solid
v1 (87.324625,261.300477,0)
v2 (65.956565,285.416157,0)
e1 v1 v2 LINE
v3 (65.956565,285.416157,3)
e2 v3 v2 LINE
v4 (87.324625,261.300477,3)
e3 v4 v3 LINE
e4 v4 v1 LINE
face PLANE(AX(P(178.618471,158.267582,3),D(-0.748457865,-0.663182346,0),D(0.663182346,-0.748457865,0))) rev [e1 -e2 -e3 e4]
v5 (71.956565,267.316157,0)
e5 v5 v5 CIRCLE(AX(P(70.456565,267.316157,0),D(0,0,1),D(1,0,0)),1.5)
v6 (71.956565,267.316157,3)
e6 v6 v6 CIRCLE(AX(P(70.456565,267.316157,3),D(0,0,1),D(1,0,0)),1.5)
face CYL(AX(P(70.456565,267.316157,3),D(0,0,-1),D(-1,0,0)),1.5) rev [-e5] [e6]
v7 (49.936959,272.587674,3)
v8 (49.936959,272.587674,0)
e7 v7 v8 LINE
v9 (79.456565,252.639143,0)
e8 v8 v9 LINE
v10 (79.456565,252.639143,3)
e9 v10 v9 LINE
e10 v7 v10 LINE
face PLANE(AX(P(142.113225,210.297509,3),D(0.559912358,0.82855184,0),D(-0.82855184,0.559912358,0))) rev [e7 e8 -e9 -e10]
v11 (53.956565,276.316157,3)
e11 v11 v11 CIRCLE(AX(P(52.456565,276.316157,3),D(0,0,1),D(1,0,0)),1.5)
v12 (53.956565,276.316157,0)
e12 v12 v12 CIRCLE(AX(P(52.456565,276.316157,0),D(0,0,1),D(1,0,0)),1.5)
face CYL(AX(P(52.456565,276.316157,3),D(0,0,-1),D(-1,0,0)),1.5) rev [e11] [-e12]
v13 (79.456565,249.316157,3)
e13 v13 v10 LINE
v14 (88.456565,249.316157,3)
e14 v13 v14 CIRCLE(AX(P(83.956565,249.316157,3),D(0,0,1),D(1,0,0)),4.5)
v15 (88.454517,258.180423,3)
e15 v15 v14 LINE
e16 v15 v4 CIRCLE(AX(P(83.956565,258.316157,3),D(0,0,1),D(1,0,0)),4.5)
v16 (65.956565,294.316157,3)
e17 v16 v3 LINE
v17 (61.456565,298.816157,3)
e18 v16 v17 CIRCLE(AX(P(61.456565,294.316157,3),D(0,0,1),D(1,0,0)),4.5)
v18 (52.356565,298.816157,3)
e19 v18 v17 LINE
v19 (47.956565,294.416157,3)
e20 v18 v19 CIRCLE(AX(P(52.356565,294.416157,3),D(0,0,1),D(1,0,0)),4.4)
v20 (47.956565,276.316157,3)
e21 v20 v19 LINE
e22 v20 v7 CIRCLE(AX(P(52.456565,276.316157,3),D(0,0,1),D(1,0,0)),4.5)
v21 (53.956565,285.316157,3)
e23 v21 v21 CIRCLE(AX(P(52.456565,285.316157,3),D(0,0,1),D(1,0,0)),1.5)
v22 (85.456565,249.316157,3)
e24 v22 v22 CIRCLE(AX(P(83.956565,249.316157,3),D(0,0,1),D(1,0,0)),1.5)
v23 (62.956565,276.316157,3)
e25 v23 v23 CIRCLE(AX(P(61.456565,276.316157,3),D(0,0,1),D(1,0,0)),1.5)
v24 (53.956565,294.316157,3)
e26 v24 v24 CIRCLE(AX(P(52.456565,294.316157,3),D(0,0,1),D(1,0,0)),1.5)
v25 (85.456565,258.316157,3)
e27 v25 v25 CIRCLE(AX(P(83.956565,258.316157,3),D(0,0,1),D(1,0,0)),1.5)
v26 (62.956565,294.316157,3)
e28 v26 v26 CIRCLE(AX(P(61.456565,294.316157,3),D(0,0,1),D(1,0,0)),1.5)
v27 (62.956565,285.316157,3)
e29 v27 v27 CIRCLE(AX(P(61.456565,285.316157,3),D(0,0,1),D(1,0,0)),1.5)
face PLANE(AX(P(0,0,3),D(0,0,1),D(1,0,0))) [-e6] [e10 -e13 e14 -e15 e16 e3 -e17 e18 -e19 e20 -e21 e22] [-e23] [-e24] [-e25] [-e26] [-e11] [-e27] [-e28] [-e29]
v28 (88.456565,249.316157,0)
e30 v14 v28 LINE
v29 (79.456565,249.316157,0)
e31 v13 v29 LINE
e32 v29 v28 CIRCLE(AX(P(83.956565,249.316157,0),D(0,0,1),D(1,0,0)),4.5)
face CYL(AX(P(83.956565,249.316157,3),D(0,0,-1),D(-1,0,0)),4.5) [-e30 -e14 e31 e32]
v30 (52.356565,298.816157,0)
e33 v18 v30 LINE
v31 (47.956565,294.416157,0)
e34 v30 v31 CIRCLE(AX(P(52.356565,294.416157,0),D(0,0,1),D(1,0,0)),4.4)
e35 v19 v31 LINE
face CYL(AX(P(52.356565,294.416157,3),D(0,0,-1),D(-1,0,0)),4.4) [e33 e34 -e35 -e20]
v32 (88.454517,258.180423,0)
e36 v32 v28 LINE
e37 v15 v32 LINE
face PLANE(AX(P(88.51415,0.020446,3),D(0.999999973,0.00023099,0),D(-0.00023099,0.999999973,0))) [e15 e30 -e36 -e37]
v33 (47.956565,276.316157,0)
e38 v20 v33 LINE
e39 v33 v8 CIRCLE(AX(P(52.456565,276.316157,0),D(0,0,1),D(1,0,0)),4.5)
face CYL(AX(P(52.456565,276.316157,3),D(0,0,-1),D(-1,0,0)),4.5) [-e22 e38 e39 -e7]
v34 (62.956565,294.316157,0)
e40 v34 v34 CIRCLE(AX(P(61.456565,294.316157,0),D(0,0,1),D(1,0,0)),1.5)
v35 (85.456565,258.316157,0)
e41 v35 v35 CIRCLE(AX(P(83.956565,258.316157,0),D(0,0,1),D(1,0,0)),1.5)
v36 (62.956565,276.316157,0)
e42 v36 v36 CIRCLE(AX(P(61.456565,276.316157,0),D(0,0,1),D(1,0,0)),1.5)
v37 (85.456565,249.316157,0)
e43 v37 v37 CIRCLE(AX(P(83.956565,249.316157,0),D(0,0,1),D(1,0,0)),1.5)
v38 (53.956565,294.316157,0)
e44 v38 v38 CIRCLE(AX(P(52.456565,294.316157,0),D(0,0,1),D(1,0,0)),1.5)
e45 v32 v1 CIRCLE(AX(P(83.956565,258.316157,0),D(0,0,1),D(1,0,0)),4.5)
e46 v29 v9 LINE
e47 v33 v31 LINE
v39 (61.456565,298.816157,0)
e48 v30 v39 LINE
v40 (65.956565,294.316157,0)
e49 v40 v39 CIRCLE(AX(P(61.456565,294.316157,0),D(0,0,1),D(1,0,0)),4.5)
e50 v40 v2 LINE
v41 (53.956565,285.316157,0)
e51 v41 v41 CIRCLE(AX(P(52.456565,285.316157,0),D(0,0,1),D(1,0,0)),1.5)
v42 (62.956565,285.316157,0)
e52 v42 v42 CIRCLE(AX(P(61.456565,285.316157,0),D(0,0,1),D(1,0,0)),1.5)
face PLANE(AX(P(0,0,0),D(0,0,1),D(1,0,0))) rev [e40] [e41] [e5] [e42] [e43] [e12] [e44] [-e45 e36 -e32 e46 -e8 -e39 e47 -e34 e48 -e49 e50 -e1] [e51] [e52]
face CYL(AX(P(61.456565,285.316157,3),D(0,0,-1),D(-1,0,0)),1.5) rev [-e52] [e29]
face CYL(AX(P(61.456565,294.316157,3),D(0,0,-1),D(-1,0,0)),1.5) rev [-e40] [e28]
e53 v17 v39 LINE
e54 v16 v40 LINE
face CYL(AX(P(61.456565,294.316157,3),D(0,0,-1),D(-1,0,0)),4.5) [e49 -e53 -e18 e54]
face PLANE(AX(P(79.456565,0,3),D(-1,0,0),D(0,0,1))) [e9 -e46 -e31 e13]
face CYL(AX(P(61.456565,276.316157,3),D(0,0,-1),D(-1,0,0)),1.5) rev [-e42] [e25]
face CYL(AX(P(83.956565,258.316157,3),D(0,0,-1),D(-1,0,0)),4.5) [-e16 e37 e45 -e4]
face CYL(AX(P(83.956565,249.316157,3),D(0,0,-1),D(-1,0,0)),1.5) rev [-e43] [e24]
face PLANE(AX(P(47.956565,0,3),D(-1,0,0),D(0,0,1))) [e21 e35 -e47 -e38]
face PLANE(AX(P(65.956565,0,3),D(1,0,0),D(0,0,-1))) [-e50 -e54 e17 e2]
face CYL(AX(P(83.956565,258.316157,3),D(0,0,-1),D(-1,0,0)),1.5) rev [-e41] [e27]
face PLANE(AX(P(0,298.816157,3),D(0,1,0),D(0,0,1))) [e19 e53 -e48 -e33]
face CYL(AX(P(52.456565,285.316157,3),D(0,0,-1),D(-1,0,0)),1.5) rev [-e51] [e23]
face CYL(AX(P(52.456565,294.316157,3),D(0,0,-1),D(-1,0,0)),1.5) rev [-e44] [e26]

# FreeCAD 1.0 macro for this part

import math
import FreeCAD as App
import Part
import Sketcher
Q = App.Units.Quantity

doc = App.newDocument("Part")
body = doc.addObject("PartDesign::Body", "Body")

sketch1 = body.newObject("Sketcher::SketchObject", "Sketch")
sketch1.AttachmentSupport = (doc.getObject("XY_Plane"), [""])
sketch1.MapMode = "FlatFace"
sketch1.addGeometry(Part.LineSegment(App.Vector(47.956565, 294.416157, 0), App.Vector(47.956565, 276.316157, 0)), False)
sketch1.addGeometry(Part.ArcOfCircle(Part.Circle(App.Vector(52.456565, 276.316157, 0), App.Vector(0, 0, 1), 4.5), math.radians(180), math.radians(235.950263)), False)
sketch1.addGeometry(Part.LineSegment(App.Vector(49.936959, 272.587674, 0), App.Vector(70.456565, 258.721093, 0)), False)
sketch1.addGeometry(Part.LineSegment(App.Vector(70.456565, 258.721093, 0), App.Vector(79.456565, 252.639143, 0)), False)
sketch1.addGeometry(Part.LineSegment(App.Vector(79.456565, 252.639143, 0), App.Vector(79.456565, 249.316157, 0)), False)
sketch1.addGeometry(Part.ArcOfCircle(Part.Circle(App.Vector(83.956565, 249.316157, 0), App.Vector(0, 0, 1), 4.5), math.radians(180), math.radians(360)), False)
sketch1.addGeometry(Part.LineSegment(App.Vector(88.456565, 249.316157, 0), App.Vector(88.456564, 249.318236, 0)), False)
sketch1.addGeometry(Part.LineSegment(App.Vector(88.456564, 249.318236, 0), App.Vector(88.454517, 258.180423, 0)), False)
sketch1.addGeometry(Part.ArcOfCircle(Part.Circle(App.Vector(83.956565, 258.316157, 0), App.Vector(0, 0, 1), 4.5), math.radians(-1.728485), math.radians(41.543031)), False)
sketch1.addGeometry(Part.LineSegment(App.Vector(87.324625, 261.300477, 0), App.Vector(65.956565, 285.416157, 0)), False)
sketch1.addGeometry(Part.LineSegment(App.Vector(65.956565, 285.416157, 0), App.Vector(65.956565, 294.316157, 0)), False)
sketch1.addGeometry(Part.ArcOfCircle(Part.Circle(App.Vector(61.456565, 294.316157, 0), App.Vector(0, 0, 1), 4.5), math.radians(0), math.radians(90)), False)
sketch1.addGeometry(Part.LineSegment(App.Vector(61.456565, 298.816157, 0), App.Vector(52.356565, 298.816157, 0)), False)
sketch1.addGeometry(Part.ArcOfCircle(Part.Circle(App.Vector(52.356565, 294.416157, 0), App.Vector(0, 0, 1), 4.4), math.radians(90), math.radians(180)), False)
sketch1.addGeometry(Part.Circle(App.Vector(83.956565, 249.316157, 0), App.Vector(0, 0, 1), 1.5), False)
sketch1.addGeometry(Part.Circle(App.Vector(83.956565, 258.316157, 0), App.Vector(0, 0, 1), 1.5), False)
sketch1.addGeometry(Part.Circle(App.Vector(70.456565, 267.316157, 0), App.Vector(0, 0, 1), 1.5), False)
sketch1.addGeometry(Part.Circle(App.Vector(52.456565, 276.316157, 0), App.Vector(0, 0, 1), 1.5), False)
sketch1.addGeometry(Part.Circle(App.Vector(61.456565, 276.316157, 0), App.Vector(0, 0, 1), 1.5), False)
sketch1.addGeometry(Part.Circle(App.Vector(52.456565, 285.316157, 0), App.Vector(0, 0, 1), 1.5), False)
sketch1.addGeometry(Part.Circle(App.Vector(52.456565, 294.316157, 0), App.Vector(0, 0, 1), 1.5), False)
sketch1.addGeometry(Part.Circle(App.Vector(61.456565, 285.316157, 0), App.Vector(0, 0, 1), 1.5), False)
sketch1.addGeometry(Part.Circle(App.Vector(61.456565, 294.316157, 0), App.Vector(0, 0, 1), 1.5), False)
sketch1.addConstraint(Sketcher.Constraint("Tangent", 0, 2, 1, 1))
sketch1.addConstraint(Sketcher.Constraint("Tangent", 1, 2, 2, 1))
sketch1.addConstraint(Sketcher.Constraint("Coincident", 2, 2, 3, 1))
sketch1.addConstraint(Sketcher.Constraint("Coincident", 3, 2, 4, 1))
sketch1.addConstraint(Sketcher.Constraint("Tangent", 4, 2, 5, 1))
sketch1.addConstraint(Sketcher.Constraint("Coincident", 5, 2, 6, 1))
sketch1.addConstraint(Sketcher.Constraint("Coincident", 6, 2, 7, 1))
sketch1.addConstraint(Sketcher.Constraint("Coincident", 7, 2, 8, 1))
sketch1.addConstraint(Sketcher.Constraint("Tangent", 8, 2, 9, 1))
sketch1.addConstraint(Sketcher.Constraint("Coincident", 9, 2, 10, 1))
sketch1.addConstraint(Sketcher.Constraint("Tangent", 10, 2, 11, 1))
sketch1.addConstraint(Sketcher.Constraint("Tangent", 11, 2, 12, 1))
sketch1.addConstraint(Sketcher.Constraint("Tangent", 12, 2, 13, 1))
sketch1.addConstraint(Sketcher.Constraint("Tangent", 13, 2, 0, 1))
sketch1.addConstraint(Sketcher.Constraint("Vertical", 0))
sketch1.addConstraint(Sketcher.Constraint("Vertical", 4))
sketch1.addConstraint(Sketcher.Constraint("Vertical", 6))
sketch1.addConstraint(Sketcher.Constraint("Vertical", 10))
sketch1.addConstraint(Sketcher.Constraint("Horizontal", 12))
sketch1.addConstraint(Sketcher.Constraint("Coincident", 14, 3, 5, 3))
sketch1.addConstraint(Sketcher.Constraint("Coincident", 15, 3, 8, 3))
sketch1.addConstraint(Sketcher.Constraint("Coincident", 17, 3, 1, 3))
sketch1.addConstraint(Sketcher.Constraint("Coincident", 22, 3, 11, 3))
sketch1.addConstraint(Sketcher.Constraint("Equal", 1, 5))
sketch1.addConstraint(Sketcher.Constraint("Equal", 5, 8))
sketch1.addConstraint(Sketcher.Constraint("Equal", 8, 11))
sketch1.addConstraint(Sketcher.Constraint("Equal", 14, 15))
sketch1.addConstraint(Sketcher.Constraint("Equal", 15, 16))
sketch1.addConstraint(Sketcher.Constraint("Equal", 16, 17))
sketch1.addConstraint(Sketcher.Constraint("Equal", 17, 18))
sketch1.addConstraint(Sketcher.Constraint("Equal", 18, 19))
sketch1.addConstraint(Sketcher.Constraint("Equal", 19, 20))
sketch1.addConstraint(Sketcher.Constraint("Equal", 20, 21))
sketch1.addConstraint(Sketcher.Constraint("Equal", 21, 22))
sketch1.addConstraint(Sketcher.Constraint("Parallel", 2, 3))
sketch1.addConstraint(Sketcher.Constraint("Horizontal", 17, 3, 18, 3))
sketch1.addConstraint(Sketcher.Constraint("Horizontal", 11, 3, 20, 3))
sketch1.addConstraint(Sketcher.Constraint("Horizontal", 19, 3, 21, 3))
sketch1.addConstraint(Sketcher.Constraint("Horizontal", 4, 2, 5, 2))
sketch1.addConstraint(Sketcher.Constraint("Vertical", 5, 3, 8, 3))
sketch1.addConstraint(Sketcher.Constraint("Vertical", 11, 3, 18, 3))
sketch1.addConstraint(Sketcher.Constraint("Vertical", 17, 3, 19, 3))
sketch1.addConstraint(Sketcher.Constraint("Vertical", 19, 3, 20, 3))
sketch1.addConstraint(Sketcher.Constraint("Vertical", 18, 3, 21, 3))
sketch1.addConstraint(Sketcher.Constraint("Vertical", 16, 3, 2, 2))
sketch1.addConstraint(Sketcher.Constraint("Diameter", 14, Q("3 mm")))
sketch1.addConstraint(Sketcher.Constraint("Radius", 1, Q("4.5 mm")))
sketch1.addConstraint(Sketcher.Constraint("Radius", 13, Q("4.4 mm")))
sketch1.addConstraint(Sketcher.Constraint("DistanceX", 12, 2, 12, 1, Q("9.1 mm")))
sketch1.addConstraint(Sketcher.Constraint("DistanceY", 0, 2, 0, 1, Q("18.1 mm")))
sketch1.addConstraint(Sketcher.Constraint("DistanceY", 10, 1, 10, 2, Q("8.9 mm")))
sketch1.addConstraint(Sketcher.Constraint("DistanceY", 5, 3, 1, 3, Q("27 mm")))
sketch1.addConstraint(Sketcher.Constraint("DistanceY", 5, 3, 8, 3, Q("9 mm")))
sketch1.addConstraint(Sketcher.Constraint("DistanceY", 8, 3, 16, 3, Q("9 mm")))
sketch1.addConstraint(Sketcher.Constraint("DistanceX", 1, 3, 16, 3, Q("18 mm")))
sketch1.addConstraint(Sketcher.Constraint("DistanceY", 1, 3, 19, 3, Q("9 mm")))
sketch1.addConstraint(Sketcher.Constraint("DistanceX", 2, 2, 3, 2, Q("9 mm")))
sketch1.addConstraint(Sketcher.Constraint("DistanceY", 6, 1, 6, 2, Q("0.002079 mm")))
sketch1.addConstraint(Sketcher.Constraint("DistanceY", 4, 2, 4, 1, Q("3.322986 mm")))
sketch1.addConstraint(Sketcher.Constraint("DistanceX", -1, 1, 1, 2, Q("49.936959 mm")))
sketch1.addConstraint(Sketcher.Constraint("Distance", 7, Q("8.862187 mm")))
sketch1.addConstraint(Sketcher.Constraint("DistanceY", -1, 1, 1, 3, Q("276.316157 mm")))
pad1 = body.newObject("PartDesign::Pad", "Pad")
pad1.Profile = sketch1
pad1.Length = 3

doc.recompute()
